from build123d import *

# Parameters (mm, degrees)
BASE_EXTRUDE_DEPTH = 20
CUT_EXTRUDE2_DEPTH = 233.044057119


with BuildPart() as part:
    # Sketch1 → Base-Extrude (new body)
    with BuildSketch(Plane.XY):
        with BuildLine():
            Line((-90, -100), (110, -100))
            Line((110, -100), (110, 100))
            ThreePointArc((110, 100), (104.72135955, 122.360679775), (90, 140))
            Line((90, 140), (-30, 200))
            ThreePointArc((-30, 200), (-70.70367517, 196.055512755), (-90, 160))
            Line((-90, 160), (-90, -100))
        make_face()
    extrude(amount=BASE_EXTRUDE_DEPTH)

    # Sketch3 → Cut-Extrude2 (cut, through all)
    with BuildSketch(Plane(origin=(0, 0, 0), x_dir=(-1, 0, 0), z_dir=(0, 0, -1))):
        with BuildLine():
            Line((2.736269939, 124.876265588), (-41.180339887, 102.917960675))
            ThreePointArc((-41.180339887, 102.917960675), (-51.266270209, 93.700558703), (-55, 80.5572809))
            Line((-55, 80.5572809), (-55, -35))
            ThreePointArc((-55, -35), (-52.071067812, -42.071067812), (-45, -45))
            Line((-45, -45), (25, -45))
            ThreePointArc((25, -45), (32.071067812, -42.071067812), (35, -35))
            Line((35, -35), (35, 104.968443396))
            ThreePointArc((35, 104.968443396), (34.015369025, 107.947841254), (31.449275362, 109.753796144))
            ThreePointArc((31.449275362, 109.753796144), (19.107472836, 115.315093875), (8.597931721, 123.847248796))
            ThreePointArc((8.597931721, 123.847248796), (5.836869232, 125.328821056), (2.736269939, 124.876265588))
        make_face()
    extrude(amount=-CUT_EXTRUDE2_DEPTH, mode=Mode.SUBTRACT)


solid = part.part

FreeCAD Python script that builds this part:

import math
import FreeCAD as App
import Part
import Sketcher
from FreeCAD import Vector

doc = App.newDocument("Part")
body = doc.addObject("PartDesign::Body", "Body")

sketch1 = doc.addObject("Sketcher::SketchObject", "Sketch")
body.addObject(sketch1)
sketch1.AttachmentSupport = (doc.XY_Plane, [""])
sketch1.MapMode = "FlatFace"
sketch1.addGeometry([
    Part.LineSegment(Vector(-90, -100, 0), Vector(110, -100, 0)),
    Part.LineSegment(Vector(110, -100, 0), Vector(110, 100, 0)),
    Part.ArcOfCircle(Part.Circle(Vector(60, 100, 0), Vector(0, 0, 1), 50), math.radians(0), math.radians(53.130102)),
    Part.LineSegment(Vector(90, 140, 0), Vector(-30, 200, 0)),
    Part.ArcOfCircle(Part.Circle(Vector(-46.666667, 160, 0), Vector(0, 0, 1), 43.333333), math.radians(67.380135), math.radians(180)),
    Part.LineSegment(Vector(-90, 160, 0), Vector(-90, -100, 0)),
], False)
sketch1.addConstraint([
    Sketcher.Constraint("Coincident", 0, 2, 1, 1),
    Sketcher.Constraint("Tangent", 1, 2, 2, 1),
    Sketcher.Constraint("Coincident", 2, 2, 3, 1),
    Sketcher.Constraint("Coincident", 3, 2, 4, 1),
    Sketcher.Constraint("Tangent", 4, 2, 5, 1),
    Sketcher.Constraint("Coincident", 5, 2, 0, 1),
    Sketcher.Constraint("Horizontal", 0),
    Sketcher.Constraint("Vertical", 1),
    Sketcher.Constraint("Vertical", 5),
    Sketcher.Constraint("Equal", 0, 1),
    Sketcher.Constraint("Radius", 2, 50.0),
    Sketcher.Constraint("DistanceX", 0, 1, 0, 2, 200.0),
    Sketcher.Constraint("DistanceY", 5, 2, 5, 1, 260.0),
    Sketcher.Constraint("DistanceX", -1, 1, 2, 3, 60.0),
    Sketcher.Constraint("DistanceY", -1, 1, 2, 3, 100.0),
    Sketcher.Constraint("DistanceX", -1, 1, 2, 2, 90.0),
    Sketcher.Constraint("DistanceX", 3, 2, -1, 1, 30.0),
    Sketcher.Constraint("DistanceY", -1, 1, 3, 2, 200.0),
])
pad1 = doc.addObject("PartDesign::Pad", "Pad")
body.addObject(pad1)
pad1.Profile = sketch1
pad1.Length = 20

sketch2 = doc.addObject("Sketcher::SketchObject", "Sketch001")
body.addObject(sketch2)
sketch2.AttachmentSupport = (doc.XY_Plane, [""])
sketch2.MapMode = "FlatFace"
sketch2.addGeometry([
    Part.LineSegment(Vector(-2.73627, 124.876266, 0), Vector(41.18034, 102.917961, 0)),
    Part.ArcOfCircle(Part.Circle(Vector(30, 80.557281, 0), Vector(0, 0, 1), 25), math.radians(0), math.radians(63.434949)),
    Part.LineSegment(Vector(55, 80.557281, 0), Vector(55, -35, 0)),
    Part.ArcOfCircle(Part.Circle(Vector(45, -35, 0), Vector(0, 0, 1), 10), math.radians(-90), math.radians(0)),
    Part.LineSegment(Vector(45, -45, 0), Vector(-25, -45, 0)),
    Part.ArcOfCircle(Part.Circle(Vector(-25, -35, 0), Vector(0, 0, 1), 10), math.radians(180), math.radians(270)),
    Part.LineSegment(Vector(-35, -35, 0), Vector(-35, 104.968443, 0)),
    Part.ArcOfCircle(Part.Circle(Vector(-30, 104.968443, 0), Vector(0, 0, 1), 5), math.radians(106.84928), math.radians(180)),
    Part.ArcOfCircle(Part.Circle(Vector(-46.666667, 160, 0), Vector(0, 0, 1), 52.5), math.radians(-73.15072), math.radians(-43.521272)),
    Part.ArcOfCircle(Part.Circle(Vector(-4.972338, 120.40413, 0), Vector(0, 0, 1), 5), math.radians(63.434949), math.radians(136.478728)),
], False)
sketch2.addConstraint([
    Sketcher.Constraint("Tangent", 0, 2, 1, 2),
    Sketcher.Constraint("Tangent", 1, 1, 2, 1),
    Sketcher.Constraint("Tangent", 2, 2, 3, 2),
    Sketcher.Constraint("Tangent", 3, 1, 4, 1),
    Sketcher.Constraint("Tangent", 4, 2, 5, 2),
    Sketcher.Constraint("Tangent", 5, 1, 6, 1),
    Sketcher.Constraint("Tangent", 6, 2, 7, 2),
    Sketcher.Constraint("Tangent", 7, 1, 8, 1),
    Sketcher.Constraint("Tangent", 8, 2, 9, 2),
    Sketcher.Constraint("Tangent", 9, 1, 0, 1),
    Sketcher.Constraint("Vertical", 2),
    Sketcher.Constraint("Horizontal", 4),
    Sketcher.Constraint("Vertical", 6),
    Sketcher.Constraint("Equal", 3, 5),
    Sketcher.Constraint("Equal", 7, 9),
    Sketcher.Constraint("Radius", 1, 25.0),
    Sketcher.Constraint("Radius", 3, 10.0),
    Sketcher.Constraint("Radius", 7, 5.0),
    Sketcher.Constraint("Radius", 8, 52.5),
    Sketcher.Constraint("DistanceX", 4, 2, 4, 1, 70.0),
    Sketcher.Constraint("DistanceX", -1, 1, 1, 3, 30.0),
    Sketcher.Constraint("DistanceY", 3, 3, -1, 1, 35.0),
    Sketcher.Constraint("DistanceY", -1, 1, 8, 3, 160.0),
    Sketcher.Constraint("DistanceY", 2, 2, 2, 1, 115.557281),
    Sketcher.Constraint("DistanceY", 6, 1, 6, 2, 139.968443),
    Sketcher.Constraint("DistanceY", -1, 1, 9, 3, 120.40413),
])
pocket1 = doc.addObject("PartDesign::Pocket", "Pocket")
body.addObject(pocket1)
pocket1.Profile = sketch2
pocket1.Type = "ThroughAll"
pocket1.Reversed = True

doc.recompute()
